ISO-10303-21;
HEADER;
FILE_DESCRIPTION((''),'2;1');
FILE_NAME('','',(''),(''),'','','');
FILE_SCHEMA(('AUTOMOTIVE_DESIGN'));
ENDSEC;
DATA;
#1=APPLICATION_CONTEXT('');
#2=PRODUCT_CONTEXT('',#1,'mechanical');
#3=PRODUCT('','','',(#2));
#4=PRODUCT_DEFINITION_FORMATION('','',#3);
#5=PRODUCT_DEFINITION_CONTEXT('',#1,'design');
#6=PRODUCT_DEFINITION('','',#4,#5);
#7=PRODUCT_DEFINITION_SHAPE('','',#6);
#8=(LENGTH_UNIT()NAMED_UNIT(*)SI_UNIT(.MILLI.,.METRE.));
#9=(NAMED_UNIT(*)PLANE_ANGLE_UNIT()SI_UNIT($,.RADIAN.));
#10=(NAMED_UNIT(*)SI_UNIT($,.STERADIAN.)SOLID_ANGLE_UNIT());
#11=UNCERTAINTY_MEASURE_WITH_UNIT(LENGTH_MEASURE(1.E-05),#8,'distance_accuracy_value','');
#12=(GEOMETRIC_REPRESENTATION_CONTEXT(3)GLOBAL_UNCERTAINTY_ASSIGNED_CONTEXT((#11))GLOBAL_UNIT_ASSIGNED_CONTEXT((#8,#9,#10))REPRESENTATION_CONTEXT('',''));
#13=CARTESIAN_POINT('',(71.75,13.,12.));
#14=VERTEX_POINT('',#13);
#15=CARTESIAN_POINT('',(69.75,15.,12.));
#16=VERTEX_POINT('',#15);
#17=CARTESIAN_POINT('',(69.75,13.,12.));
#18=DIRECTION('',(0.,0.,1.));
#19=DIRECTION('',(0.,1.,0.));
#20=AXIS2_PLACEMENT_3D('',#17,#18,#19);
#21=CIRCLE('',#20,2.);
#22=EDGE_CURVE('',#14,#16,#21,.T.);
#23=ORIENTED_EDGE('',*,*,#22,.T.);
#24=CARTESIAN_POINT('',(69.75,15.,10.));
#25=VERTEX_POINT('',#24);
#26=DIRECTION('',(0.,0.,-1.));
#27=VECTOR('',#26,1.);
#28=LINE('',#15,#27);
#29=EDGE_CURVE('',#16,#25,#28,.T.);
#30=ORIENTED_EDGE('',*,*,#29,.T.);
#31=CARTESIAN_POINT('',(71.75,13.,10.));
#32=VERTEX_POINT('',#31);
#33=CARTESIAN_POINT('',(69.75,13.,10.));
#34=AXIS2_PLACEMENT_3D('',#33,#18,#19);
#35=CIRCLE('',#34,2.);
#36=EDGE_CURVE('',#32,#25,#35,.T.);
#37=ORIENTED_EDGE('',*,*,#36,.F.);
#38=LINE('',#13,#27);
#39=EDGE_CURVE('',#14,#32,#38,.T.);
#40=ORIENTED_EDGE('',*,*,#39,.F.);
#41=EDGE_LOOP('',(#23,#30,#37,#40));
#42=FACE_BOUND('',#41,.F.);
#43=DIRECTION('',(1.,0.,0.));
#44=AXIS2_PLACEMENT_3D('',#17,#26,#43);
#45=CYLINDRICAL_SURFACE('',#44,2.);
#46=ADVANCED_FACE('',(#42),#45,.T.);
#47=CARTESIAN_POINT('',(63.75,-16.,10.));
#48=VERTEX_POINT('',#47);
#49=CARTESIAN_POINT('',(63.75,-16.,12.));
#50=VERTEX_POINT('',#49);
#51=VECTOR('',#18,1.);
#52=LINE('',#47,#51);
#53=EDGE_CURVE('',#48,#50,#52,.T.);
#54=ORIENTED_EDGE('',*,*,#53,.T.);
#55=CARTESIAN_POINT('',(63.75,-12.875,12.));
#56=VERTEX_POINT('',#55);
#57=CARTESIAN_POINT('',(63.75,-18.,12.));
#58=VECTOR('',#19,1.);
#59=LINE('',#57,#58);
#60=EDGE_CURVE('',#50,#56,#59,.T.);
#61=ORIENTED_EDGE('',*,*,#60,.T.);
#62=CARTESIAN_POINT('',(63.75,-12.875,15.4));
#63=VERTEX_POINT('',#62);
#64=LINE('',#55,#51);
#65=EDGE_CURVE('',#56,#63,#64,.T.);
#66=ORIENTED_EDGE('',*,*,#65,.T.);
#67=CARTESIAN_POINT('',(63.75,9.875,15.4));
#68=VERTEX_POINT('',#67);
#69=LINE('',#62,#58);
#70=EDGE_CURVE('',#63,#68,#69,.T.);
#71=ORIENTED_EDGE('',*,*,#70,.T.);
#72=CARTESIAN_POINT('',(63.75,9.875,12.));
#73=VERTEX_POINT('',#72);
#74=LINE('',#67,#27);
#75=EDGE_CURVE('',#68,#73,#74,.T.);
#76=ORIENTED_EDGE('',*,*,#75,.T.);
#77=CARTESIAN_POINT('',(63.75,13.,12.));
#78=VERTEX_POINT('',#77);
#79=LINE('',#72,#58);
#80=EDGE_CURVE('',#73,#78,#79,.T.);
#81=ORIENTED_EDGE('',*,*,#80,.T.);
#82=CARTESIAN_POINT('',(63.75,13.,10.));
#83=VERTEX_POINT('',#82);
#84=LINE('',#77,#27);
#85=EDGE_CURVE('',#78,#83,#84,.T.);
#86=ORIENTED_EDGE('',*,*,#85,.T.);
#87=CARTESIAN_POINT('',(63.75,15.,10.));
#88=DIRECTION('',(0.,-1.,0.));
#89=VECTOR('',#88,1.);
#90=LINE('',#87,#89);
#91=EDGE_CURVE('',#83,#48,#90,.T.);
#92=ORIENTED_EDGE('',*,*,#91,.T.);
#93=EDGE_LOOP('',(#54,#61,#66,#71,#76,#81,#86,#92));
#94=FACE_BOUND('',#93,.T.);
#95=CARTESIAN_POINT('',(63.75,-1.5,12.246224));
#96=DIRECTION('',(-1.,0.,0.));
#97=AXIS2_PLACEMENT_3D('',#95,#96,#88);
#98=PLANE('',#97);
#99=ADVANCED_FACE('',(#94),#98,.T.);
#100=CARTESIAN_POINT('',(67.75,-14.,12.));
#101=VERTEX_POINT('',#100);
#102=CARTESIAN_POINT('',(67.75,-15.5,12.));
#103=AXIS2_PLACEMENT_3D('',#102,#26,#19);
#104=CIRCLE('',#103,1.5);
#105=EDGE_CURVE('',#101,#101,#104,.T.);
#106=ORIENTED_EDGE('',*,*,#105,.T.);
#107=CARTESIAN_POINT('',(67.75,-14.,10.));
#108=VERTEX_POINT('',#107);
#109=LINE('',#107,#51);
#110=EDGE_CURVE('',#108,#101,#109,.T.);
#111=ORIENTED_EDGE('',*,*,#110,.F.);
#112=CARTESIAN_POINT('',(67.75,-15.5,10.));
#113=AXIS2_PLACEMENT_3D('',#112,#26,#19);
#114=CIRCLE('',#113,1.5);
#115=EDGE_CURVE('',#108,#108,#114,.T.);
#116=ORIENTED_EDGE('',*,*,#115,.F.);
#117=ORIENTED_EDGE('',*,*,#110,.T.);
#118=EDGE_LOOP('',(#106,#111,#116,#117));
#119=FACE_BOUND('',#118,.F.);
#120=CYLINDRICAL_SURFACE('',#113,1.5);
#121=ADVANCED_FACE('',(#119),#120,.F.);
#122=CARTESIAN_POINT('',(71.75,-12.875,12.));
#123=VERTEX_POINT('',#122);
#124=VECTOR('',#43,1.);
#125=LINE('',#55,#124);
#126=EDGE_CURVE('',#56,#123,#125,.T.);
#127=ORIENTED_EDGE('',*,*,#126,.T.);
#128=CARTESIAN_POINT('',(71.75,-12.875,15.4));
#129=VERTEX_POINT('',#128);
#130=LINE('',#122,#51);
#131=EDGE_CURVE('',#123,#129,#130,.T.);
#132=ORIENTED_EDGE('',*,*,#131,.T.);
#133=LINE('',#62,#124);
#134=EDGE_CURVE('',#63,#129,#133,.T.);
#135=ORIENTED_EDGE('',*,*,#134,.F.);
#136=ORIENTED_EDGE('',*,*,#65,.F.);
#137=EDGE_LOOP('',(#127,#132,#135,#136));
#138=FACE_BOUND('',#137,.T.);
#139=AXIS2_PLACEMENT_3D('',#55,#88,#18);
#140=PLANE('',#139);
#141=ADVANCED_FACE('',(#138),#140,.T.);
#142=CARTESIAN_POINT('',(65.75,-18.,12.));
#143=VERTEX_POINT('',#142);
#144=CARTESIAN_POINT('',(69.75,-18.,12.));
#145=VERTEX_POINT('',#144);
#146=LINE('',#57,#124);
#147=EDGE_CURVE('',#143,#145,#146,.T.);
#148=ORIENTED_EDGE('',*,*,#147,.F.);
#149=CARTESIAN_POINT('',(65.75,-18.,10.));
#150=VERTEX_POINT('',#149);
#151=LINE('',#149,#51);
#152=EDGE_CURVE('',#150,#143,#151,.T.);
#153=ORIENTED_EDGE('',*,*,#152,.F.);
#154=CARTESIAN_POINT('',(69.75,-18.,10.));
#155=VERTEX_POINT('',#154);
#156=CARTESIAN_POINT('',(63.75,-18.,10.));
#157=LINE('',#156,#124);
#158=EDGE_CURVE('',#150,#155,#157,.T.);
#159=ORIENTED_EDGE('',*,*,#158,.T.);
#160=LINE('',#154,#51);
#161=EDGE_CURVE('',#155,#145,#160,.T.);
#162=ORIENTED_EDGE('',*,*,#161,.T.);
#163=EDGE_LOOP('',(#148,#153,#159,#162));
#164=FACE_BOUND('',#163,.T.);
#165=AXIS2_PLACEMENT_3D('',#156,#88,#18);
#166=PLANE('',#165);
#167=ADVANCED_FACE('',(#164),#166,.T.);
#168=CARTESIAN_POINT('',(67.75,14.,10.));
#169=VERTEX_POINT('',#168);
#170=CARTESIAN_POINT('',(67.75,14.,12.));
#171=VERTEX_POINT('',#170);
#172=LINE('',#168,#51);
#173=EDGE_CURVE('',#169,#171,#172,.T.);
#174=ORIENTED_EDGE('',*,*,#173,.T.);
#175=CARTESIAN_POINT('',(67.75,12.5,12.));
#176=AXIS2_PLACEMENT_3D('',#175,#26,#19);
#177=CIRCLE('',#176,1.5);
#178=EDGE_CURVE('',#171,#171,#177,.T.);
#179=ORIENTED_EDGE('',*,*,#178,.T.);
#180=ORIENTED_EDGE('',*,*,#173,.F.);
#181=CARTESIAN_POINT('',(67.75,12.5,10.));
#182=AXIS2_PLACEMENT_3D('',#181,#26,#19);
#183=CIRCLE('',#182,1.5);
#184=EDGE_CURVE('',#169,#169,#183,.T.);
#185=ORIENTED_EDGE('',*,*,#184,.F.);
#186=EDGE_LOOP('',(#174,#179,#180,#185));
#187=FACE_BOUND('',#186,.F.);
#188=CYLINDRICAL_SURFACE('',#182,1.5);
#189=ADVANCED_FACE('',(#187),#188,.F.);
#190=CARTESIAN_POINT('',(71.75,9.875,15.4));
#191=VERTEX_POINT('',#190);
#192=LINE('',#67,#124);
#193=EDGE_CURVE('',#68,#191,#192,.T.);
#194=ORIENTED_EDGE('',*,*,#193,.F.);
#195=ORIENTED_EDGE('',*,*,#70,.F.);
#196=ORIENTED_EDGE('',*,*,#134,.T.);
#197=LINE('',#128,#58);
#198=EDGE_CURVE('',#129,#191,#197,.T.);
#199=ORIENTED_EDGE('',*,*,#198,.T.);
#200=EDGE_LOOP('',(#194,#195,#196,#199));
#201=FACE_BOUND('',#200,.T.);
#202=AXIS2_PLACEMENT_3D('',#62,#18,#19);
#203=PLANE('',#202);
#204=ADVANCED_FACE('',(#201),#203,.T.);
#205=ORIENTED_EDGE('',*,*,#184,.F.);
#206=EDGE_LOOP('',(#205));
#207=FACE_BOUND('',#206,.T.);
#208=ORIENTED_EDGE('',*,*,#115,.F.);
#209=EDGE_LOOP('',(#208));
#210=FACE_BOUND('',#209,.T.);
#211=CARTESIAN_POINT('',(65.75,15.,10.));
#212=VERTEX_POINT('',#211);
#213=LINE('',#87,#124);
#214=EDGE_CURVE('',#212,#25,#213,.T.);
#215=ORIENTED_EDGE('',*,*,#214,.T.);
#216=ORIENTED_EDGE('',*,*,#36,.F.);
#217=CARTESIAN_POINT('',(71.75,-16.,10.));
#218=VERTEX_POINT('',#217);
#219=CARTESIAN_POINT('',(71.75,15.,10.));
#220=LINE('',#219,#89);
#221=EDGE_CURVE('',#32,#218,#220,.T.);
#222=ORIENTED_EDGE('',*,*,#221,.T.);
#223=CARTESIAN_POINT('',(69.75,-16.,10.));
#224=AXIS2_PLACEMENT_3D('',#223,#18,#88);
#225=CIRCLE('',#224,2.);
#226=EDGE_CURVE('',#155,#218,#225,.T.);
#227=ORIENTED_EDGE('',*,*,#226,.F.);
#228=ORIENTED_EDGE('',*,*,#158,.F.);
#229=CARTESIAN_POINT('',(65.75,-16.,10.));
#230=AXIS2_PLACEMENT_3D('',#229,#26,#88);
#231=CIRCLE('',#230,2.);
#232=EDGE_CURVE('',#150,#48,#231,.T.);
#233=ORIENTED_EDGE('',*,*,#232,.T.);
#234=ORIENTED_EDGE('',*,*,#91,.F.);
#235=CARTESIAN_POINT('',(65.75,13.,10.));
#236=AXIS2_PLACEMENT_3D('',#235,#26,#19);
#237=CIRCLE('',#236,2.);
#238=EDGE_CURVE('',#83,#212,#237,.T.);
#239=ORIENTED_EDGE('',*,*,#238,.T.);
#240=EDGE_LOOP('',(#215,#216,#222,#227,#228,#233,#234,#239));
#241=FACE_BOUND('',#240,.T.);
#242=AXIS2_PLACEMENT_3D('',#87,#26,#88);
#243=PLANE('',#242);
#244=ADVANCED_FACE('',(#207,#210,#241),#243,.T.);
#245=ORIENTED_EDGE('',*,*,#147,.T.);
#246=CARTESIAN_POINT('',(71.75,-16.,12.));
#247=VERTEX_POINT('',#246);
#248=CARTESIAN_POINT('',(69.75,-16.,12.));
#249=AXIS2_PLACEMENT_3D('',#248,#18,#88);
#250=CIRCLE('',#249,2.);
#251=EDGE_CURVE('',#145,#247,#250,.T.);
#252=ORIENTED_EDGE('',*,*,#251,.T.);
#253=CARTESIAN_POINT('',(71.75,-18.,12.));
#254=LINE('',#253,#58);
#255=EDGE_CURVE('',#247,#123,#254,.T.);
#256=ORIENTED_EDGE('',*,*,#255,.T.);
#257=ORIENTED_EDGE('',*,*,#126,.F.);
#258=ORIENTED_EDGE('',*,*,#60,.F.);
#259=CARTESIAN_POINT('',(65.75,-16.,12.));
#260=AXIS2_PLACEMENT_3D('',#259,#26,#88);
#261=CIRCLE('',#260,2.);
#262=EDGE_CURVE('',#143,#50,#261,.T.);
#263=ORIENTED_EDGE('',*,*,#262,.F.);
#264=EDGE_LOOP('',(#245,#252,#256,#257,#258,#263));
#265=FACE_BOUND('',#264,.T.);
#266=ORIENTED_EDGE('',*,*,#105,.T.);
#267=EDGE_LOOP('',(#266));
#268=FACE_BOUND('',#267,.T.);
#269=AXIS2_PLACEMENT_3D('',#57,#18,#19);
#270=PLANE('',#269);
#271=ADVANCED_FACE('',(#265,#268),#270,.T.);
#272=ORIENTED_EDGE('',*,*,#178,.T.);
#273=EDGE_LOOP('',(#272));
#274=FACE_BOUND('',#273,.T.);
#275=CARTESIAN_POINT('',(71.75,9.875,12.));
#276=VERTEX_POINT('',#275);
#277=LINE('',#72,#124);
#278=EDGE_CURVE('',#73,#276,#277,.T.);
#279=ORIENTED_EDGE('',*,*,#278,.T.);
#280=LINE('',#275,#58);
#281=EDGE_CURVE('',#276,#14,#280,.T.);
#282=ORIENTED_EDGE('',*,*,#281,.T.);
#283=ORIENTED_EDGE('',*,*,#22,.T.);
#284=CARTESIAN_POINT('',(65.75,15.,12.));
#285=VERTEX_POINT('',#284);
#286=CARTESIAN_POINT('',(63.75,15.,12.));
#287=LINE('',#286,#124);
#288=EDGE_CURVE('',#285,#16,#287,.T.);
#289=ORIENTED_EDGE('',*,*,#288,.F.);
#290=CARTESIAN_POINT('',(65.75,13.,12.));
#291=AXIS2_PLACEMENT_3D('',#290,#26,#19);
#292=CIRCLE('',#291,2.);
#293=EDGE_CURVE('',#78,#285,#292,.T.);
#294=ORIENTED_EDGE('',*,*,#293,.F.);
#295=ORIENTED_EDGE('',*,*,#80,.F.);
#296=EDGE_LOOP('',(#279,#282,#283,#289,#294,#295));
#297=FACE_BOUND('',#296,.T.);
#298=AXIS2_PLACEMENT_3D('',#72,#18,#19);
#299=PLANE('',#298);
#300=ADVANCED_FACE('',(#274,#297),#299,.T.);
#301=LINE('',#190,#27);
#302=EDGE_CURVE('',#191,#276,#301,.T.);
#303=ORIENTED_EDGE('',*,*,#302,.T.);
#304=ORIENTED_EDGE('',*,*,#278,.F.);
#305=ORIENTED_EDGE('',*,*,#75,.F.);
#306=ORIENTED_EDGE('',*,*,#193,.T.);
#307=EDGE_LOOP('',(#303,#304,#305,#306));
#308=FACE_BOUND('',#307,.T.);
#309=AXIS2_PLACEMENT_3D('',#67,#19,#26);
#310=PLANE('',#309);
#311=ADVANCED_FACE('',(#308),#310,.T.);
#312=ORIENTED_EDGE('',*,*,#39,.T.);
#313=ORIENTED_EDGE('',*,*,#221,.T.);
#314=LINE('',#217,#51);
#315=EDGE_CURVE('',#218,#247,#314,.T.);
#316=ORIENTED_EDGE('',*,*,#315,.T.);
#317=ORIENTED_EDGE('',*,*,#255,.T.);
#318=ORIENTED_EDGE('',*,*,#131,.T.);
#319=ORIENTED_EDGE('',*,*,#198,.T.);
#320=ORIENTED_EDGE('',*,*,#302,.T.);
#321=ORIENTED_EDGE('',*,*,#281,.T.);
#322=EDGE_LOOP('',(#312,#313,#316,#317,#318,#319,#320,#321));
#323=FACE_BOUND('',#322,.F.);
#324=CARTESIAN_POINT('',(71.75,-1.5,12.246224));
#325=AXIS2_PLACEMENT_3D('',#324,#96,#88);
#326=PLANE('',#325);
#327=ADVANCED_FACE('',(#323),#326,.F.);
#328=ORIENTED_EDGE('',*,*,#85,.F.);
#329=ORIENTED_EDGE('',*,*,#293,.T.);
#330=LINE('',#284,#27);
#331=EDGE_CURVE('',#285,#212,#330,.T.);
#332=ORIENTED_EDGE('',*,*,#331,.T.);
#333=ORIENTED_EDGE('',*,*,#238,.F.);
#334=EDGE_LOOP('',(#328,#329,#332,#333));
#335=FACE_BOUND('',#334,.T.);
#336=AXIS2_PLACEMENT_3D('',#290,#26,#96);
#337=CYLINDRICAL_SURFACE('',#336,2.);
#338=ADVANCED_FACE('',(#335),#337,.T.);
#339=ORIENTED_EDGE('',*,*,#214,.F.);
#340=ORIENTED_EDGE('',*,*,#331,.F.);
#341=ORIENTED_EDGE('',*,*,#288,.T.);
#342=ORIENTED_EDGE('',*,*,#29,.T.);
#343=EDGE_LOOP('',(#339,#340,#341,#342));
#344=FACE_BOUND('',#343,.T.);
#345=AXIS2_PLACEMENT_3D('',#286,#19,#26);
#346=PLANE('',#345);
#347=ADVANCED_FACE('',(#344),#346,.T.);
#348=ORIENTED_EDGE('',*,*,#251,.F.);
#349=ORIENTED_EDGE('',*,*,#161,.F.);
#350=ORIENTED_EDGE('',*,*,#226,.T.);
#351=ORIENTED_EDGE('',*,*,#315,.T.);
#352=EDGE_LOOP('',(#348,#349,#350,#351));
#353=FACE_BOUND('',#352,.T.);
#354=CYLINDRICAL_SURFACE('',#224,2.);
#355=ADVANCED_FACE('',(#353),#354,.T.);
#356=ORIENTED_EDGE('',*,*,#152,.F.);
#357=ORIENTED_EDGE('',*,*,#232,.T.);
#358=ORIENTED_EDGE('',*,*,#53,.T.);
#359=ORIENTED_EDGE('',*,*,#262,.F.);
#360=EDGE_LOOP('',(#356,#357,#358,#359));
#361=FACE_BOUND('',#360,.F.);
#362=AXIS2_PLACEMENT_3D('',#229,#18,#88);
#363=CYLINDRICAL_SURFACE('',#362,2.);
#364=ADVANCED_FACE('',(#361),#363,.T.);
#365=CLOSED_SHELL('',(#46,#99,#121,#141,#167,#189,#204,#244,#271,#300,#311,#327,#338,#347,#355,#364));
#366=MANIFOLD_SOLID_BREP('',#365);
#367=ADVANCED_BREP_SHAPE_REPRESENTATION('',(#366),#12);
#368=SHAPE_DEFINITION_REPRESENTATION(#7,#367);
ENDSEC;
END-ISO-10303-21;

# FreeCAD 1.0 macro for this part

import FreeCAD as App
import Part
import Sketcher

V = App.Vector


def edges_at(feature, points):
    """Names of the edges that pass closest to the given points."""
    edges = feature.Shape.Edges
    near = lambda p: min(range(len(edges)), key=lambda i: edges[i].distToShape(Part.Vertex(*p))[0])
    return sorted({f"Edge{near(p) + 1}" for p in points})


def add_polygon(sketch, points):
    """Adds a closed chain of lines whose ends are joined by coincident constraints."""
    first, n = sketch.GeometryCount, len(points)
    for a, b in zip(points, points[1:] + points[:1]):
        sketch.addGeometry(Part.LineSegment(App.Vector(*a, 0), App.Vector(*b, 0)), False)
    for i in range(n):
        sketch.addConstraint(Sketcher.Constraint("Coincident", first + i, 2, first + (i + 1) % n, 1))

doc = App.newDocument("Part")
body = doc.addObject("PartDesign::Body", "Body")

# Sketch on YZ plane
sketch1 = body.newObject("Sketcher::SketchObject", "Sketch")
sketch1.AttachmentSupport = (doc.getObject("YZ_Plane"), [""])
sketch1.MapMode = "FlatFace"
add_polygon(sketch1, [(-11.9, -5), (-17, -5), (-17, -7), (16, -7), (16, -5), (10.9, -5), (10.9, -1.6), (-11.9, -1.6)])  # lines 0-7
sketch1.addConstraint(Sketcher.Constraint("Horizontal", 0))
sketch1.addConstraint(Sketcher.Constraint("Vertical", 1))
sketch1.addConstraint(Sketcher.Constraint("Horizontal", 2))
sketch1.addConstraint(Sketcher.Constraint("Vertical", 3))
sketch1.addConstraint(Sketcher.Constraint("Horizontal", 4))
sketch1.addConstraint(Sketcher.Constraint("Vertical", 5))
sketch1.addConstraint(Sketcher.Constraint("Horizontal", 6))
sketch1.addConstraint(Sketcher.Constraint("Vertical", 7))
sketch1.addConstraint(Sketcher.Constraint("Horizontal", 0, 2, 3, 2))
sketch1.addConstraint(Sketcher.Constraint("Equal", 0, 4))
sketch1.addConstraint(Sketcher.Constraint("DistanceX", 2, 1, 2, 2, 33.0))
sketch1.addConstraint(Sketcher.Constraint("DistanceY", 1, 2, 1, 1, 2.0))
sketch1.addConstraint(Sketcher.Constraint("DistanceY", 5, 1, 5, 2, 3.4))
sketch1.addConstraint(Sketcher.Constraint("DistanceX", 0, 2, -1, 1, 17.0))
sketch1.addConstraint(Sketcher.Constraint("DistanceY", 0, 2, -1, 1, 5.0))
sketch1.addConstraint(Sketcher.Constraint("DistanceX", 6, 2, 6, 1, 22.75))
pad1 = body.newObject("PartDesign::Pad", "Pad")
pad1.Profile = sketch1
pad1.Length = 8

# Sketch on XY plane
sketch2 = body.newObject("Sketcher::SketchObject", "Sketch001")
sketch2.AttachmentSupport = (doc.getObject("XY_Plane"), [""])
sketch2.MapMode = "FlatFace"
sketch2.AttachmentOffset = App.Placement(V(0, 0, -7), App.Rotation())
sketch2.addGeometry(Part.Circle(V(4, -14.5, 0), V(0, 0, 1), 1.5), False)
sketch2.addGeometry(Part.Circle(V(4, 13.5, 0), V(0, 0, 1), 1.5), False)
sketch2.addConstraint(Sketcher.Constraint("Equal", 0, 1))
sketch2.addConstraint(Sketcher.Constraint("Vertical", 0, 3, 1, 3))
sketch2.addConstraint(Sketcher.Constraint("Diameter", 0, 3.0))
sketch2.addConstraint(Sketcher.Constraint("DistanceX", -1, 1, 0, 3, 4.0))
sketch2.addConstraint(Sketcher.Constraint("DistanceY", 0, 3, 1, 3, 28.0))
sketch2.addConstraint(Sketcher.Constraint("DistanceY", 0, 3, -1, 1, 14.5))
pocket1 = body.newObject("PartDesign::Pocket", "Pocket")
pocket1.Profile = sketch2
pocket1.Length = 5
pocket1.Reversed = True
doc.recompute()

fillet = body.newObject("PartDesign::Fillet", "Fillet")
fillet.Base = (pocket1, edges_at(pocket1, [
    (8, -17, -6),
    (0, -17, -6),
    (8, 16, -6),
    (0, 16, -6),
]))
fillet.Radius = 2
body2 = doc.addObject("PartDesign::Body", "Body001")
doc.recompute()

body.Placement = App.Placement(V(63.75, -1, 17), App.Rotation(V(0, 0, 1), 0))
boolean = body2.newObject("PartDesign::Boolean", "Boolean")
boolean.Type = "Fuse"
boolean.addObjects([body])

doc.recompute()
